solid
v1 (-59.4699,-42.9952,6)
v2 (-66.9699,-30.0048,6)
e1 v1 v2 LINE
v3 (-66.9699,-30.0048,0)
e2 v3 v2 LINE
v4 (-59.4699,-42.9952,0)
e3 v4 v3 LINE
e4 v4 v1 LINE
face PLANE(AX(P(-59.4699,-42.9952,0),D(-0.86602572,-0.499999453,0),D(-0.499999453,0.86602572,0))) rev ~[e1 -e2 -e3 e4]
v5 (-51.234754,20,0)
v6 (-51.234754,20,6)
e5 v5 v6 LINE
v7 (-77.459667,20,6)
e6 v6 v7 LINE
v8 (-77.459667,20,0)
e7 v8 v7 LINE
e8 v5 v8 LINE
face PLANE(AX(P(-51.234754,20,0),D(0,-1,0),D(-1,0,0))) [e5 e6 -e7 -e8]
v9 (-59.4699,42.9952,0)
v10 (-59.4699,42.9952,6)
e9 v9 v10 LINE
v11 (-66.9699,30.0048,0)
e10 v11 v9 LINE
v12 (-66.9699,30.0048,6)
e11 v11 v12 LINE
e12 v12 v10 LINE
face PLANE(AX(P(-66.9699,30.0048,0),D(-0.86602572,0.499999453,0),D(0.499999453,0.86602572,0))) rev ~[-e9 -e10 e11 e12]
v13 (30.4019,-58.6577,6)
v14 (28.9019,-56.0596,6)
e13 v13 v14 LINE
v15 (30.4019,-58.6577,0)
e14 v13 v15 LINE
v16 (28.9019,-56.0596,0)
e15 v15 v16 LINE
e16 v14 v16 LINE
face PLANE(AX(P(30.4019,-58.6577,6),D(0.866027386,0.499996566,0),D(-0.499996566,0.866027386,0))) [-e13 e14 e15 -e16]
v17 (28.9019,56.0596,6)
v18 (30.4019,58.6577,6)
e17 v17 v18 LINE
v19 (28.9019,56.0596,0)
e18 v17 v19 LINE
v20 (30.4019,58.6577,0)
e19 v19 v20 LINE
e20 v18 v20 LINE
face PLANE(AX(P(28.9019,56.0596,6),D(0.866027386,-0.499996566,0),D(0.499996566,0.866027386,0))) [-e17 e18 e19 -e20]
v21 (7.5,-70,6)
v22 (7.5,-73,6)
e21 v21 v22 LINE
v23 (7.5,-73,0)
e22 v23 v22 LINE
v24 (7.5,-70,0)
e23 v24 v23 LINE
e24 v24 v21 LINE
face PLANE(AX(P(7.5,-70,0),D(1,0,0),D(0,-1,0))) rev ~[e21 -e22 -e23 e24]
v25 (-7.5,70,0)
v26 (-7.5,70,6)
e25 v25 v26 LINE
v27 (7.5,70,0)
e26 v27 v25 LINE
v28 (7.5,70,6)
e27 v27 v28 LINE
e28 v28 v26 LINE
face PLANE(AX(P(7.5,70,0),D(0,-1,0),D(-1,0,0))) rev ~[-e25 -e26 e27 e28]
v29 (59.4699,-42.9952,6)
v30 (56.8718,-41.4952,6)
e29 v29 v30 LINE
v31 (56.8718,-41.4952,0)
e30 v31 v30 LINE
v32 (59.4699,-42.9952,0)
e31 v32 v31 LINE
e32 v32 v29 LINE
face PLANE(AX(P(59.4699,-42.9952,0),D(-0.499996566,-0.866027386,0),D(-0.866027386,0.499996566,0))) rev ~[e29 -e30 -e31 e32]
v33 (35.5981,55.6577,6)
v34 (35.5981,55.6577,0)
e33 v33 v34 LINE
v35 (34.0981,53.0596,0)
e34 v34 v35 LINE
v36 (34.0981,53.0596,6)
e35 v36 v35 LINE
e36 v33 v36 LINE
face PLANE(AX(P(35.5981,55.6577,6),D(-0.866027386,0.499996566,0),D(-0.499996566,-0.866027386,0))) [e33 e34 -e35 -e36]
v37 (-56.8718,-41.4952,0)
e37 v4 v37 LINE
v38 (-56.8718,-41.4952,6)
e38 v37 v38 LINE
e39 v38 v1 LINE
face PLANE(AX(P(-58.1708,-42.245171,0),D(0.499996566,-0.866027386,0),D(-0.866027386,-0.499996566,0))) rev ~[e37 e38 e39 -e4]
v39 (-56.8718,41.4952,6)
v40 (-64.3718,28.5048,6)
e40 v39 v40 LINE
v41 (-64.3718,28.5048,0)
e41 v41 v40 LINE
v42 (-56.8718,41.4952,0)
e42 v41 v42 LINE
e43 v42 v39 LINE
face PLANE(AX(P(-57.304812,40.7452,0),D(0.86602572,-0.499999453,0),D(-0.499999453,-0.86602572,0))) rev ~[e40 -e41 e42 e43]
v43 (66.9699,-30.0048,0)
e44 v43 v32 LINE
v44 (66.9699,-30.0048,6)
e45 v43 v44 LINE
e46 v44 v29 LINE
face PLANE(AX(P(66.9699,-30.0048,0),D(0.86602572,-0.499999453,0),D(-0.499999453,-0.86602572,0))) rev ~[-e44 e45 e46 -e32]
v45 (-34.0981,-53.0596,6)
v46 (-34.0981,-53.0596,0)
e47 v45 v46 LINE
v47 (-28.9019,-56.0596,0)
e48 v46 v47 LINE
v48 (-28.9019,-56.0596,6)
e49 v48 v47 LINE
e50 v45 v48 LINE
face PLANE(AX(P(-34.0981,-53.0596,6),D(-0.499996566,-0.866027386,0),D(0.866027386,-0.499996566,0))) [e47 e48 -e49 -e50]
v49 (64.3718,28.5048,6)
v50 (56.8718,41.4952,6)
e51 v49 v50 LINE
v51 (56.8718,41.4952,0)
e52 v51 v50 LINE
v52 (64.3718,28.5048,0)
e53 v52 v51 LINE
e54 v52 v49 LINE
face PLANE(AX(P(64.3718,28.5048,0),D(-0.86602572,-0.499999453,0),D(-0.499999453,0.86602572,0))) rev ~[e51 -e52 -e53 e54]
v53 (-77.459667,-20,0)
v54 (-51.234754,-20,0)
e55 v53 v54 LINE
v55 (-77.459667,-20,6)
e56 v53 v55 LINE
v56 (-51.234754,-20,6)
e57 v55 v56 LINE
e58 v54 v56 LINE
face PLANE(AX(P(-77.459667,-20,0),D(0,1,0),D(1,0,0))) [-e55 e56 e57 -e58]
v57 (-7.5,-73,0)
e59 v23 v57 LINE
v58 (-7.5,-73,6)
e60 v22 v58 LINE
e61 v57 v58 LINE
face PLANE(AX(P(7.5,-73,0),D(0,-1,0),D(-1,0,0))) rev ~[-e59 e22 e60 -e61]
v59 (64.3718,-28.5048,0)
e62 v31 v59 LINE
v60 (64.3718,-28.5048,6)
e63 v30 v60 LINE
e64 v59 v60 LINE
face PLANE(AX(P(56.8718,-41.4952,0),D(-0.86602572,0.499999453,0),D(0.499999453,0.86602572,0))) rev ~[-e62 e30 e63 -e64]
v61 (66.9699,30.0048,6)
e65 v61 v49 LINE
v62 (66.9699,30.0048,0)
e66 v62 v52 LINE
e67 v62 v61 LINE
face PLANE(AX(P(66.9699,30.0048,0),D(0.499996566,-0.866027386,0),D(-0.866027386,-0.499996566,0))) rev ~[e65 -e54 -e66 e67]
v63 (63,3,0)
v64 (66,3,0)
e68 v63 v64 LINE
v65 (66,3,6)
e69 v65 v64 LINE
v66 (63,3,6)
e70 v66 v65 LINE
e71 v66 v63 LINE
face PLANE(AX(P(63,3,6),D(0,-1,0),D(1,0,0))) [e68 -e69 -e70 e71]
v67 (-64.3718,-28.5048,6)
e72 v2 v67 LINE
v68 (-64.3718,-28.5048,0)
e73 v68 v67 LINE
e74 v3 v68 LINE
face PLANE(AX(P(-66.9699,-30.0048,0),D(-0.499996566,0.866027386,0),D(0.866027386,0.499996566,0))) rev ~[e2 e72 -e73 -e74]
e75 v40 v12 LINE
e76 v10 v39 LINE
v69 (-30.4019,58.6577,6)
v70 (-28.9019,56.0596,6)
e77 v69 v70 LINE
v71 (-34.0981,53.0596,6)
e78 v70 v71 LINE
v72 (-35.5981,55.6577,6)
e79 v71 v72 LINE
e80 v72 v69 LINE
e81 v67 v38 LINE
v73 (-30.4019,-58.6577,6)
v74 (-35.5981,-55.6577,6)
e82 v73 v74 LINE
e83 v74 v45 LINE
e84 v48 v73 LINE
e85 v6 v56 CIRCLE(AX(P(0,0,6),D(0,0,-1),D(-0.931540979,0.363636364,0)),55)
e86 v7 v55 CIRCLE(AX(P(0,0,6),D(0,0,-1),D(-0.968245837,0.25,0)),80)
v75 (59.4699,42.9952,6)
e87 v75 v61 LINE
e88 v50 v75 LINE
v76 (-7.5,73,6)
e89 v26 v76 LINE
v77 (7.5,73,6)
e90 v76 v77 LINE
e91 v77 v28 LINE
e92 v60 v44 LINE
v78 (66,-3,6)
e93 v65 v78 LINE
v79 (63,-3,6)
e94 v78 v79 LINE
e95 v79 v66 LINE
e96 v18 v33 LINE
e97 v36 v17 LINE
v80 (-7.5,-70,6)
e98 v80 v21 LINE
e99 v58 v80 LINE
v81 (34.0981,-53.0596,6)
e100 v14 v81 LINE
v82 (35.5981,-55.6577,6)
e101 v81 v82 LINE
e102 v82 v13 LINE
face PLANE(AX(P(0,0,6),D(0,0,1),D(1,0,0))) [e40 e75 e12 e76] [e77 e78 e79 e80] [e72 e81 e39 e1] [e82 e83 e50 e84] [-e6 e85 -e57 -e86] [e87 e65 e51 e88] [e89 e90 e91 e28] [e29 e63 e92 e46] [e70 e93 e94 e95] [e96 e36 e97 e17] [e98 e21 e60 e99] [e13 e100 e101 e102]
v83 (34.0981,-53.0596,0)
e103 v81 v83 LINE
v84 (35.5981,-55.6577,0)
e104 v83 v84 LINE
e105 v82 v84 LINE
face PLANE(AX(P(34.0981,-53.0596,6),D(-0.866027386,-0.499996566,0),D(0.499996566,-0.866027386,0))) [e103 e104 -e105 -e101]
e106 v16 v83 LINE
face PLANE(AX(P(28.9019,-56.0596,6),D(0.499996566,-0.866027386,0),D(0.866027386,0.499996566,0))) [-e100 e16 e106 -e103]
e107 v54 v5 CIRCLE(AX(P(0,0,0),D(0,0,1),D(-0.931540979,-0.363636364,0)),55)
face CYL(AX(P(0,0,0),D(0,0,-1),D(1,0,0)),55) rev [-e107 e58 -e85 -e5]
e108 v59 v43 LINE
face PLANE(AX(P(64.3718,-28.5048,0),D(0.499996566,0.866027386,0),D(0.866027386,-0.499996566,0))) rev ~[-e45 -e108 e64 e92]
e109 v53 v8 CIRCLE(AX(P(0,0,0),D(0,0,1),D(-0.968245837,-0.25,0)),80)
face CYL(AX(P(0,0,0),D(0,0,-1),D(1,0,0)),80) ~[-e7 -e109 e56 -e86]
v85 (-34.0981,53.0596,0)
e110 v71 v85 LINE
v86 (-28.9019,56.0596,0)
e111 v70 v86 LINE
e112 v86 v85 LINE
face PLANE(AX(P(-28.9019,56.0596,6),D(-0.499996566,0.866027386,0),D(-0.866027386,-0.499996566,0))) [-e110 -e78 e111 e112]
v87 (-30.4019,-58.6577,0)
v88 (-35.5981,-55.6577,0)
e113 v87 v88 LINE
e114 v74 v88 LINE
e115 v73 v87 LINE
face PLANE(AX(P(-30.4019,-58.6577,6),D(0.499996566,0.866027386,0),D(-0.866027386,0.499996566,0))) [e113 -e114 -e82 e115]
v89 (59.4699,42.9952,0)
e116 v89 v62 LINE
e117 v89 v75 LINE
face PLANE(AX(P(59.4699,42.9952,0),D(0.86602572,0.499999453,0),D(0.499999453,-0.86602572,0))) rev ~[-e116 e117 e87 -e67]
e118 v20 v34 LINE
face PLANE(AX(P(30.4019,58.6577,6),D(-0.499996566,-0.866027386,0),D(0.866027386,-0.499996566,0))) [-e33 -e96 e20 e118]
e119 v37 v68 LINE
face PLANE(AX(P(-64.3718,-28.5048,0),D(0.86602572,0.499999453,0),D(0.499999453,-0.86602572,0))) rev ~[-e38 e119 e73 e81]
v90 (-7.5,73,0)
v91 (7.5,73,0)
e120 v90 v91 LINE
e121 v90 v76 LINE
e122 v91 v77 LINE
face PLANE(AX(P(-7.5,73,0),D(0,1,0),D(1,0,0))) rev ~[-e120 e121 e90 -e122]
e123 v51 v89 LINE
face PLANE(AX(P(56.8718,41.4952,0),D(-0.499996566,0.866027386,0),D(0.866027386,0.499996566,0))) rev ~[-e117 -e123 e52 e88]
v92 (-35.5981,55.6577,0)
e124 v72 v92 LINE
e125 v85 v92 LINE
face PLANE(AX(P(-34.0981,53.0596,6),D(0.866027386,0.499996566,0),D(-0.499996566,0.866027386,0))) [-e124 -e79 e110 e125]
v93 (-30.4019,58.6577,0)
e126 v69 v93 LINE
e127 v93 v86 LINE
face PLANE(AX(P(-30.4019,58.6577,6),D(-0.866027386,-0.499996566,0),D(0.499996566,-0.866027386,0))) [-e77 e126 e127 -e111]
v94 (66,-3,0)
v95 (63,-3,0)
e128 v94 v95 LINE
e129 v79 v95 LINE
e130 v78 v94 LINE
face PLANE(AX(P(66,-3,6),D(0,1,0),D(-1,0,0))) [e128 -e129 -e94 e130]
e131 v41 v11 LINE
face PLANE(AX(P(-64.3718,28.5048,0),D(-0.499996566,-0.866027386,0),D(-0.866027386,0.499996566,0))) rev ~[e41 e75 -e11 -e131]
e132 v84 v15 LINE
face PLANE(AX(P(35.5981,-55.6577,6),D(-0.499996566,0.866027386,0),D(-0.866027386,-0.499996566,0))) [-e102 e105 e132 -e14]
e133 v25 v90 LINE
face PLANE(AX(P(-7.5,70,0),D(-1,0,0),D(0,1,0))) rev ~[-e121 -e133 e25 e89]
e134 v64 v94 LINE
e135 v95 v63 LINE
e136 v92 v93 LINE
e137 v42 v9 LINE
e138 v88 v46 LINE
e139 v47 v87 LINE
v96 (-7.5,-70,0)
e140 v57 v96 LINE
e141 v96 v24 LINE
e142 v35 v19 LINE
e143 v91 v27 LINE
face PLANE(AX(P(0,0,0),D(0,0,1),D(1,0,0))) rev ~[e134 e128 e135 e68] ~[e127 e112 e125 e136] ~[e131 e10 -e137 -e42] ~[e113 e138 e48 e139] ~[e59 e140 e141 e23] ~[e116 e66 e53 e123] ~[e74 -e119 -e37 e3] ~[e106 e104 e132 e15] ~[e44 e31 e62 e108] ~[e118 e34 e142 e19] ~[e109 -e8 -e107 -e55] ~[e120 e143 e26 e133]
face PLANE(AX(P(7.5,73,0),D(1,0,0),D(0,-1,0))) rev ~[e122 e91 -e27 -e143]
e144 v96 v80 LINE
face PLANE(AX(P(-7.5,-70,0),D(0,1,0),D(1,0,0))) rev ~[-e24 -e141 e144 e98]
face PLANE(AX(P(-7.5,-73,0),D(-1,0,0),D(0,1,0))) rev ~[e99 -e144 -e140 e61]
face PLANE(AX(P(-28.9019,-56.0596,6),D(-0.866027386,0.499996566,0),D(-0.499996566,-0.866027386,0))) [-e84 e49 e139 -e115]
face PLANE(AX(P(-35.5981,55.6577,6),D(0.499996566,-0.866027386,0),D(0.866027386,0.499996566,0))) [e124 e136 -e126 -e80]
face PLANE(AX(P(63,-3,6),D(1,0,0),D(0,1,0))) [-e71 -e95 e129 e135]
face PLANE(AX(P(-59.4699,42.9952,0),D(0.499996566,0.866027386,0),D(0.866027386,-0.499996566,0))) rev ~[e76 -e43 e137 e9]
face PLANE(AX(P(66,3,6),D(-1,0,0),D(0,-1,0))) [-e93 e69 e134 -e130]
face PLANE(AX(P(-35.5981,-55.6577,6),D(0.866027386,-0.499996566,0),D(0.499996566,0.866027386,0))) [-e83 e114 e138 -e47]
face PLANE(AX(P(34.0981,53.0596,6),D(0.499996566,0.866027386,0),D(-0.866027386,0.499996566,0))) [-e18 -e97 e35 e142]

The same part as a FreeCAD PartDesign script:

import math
import FreeCAD as App
import Part
import Sketcher

V = App.Vector
Q = App.Units.Quantity


def add_polygon(sketch, points):
    """Adds a closed chain of lines whose ends are joined by coincident constraints."""
    first, n = sketch.GeometryCount, len(points)
    for a, b in zip(points, points[1:] + points[:1]):
        sketch.addGeometry(Part.LineSegment(App.Vector(*a, 0), App.Vector(*b, 0)), False)
    for i in range(n):
        sketch.addConstraint(Sketcher.Constraint("Coincident", first + i, 2, first + (i + 1) % n, 1))

doc = App.newDocument("Part")
body = doc.addObject("PartDesign::Body", "Body")

sketch1 = doc.addObject("Sketcher::SketchObject", "Sketch")
body.addObject(sketch1)
sketch1.AttachmentSupport = (doc.XY_Plane, [""])
sketch1.MapMode = "FlatFace"
sketch1.addGeometry(Part.ArcOfCircle(Part.Circle(V(0, 0, 0), V(0, 0, 1), 80), math.radians(-166), math.radians(166)), False)
sketch1.addGeometry(Part.LineSegment(V(-77.5, 20, 0), V(-51.2, 20, 0)), False)
sketch1.addGeometry(Part.ArcOfCircle(Part.Circle(V(0, 0, 0), V(0, 0, 1), 55), math.radians(-159), math.radians(159)), False)
sketch1.addGeometry(Part.LineSegment(V(-51.2, -20, 0), V(-77.5, -20, 0)), False)
add_polygon(sketch1, [(-59.5, -43), (-67, -30), (-64.4, -28.5), (-56.9, -41.5)])
add_polygon(sketch1, [(7.5, -70), (7.5, -73), (-7.5, -73), (-7.5, -70)])
add_polygon(sketch1, [(64.4, -28.5), (67, -30), (59.5, -43), (56.9, -41.5)])
add_polygon(sketch1, [(-64.4, 28.5), (-67, 30), (-59.5, 43), (-56.9, 41.5)])
add_polygon(sketch1, [(56.9, 41.5), (59.5, 43), (67, 30), (64.4, 28.5)])
add_polygon(sketch1, [(-7.5, 70), (-7.5, 73), (7.5, 73), (7.5, 70)])
sketch1.addConstraint([
    Sketcher.Constraint("Coincident", 0, 2, 1, 1),
    Sketcher.Constraint("Coincident", 1, 2, 2, 2),
    Sketcher.Constraint("Coincident", 2, 1, 3, 1),
    Sketcher.Constraint("Coincident", 3, 2, 0, 1),
    Sketcher.Constraint("Horizontal", 1),
    Sketcher.Constraint("Horizontal", 3),
    Sketcher.Constraint("Vertical", 8),
    Sketcher.Constraint("Horizontal", 9),
    Sketcher.Constraint("Vertical", 10),
    Sketcher.Constraint("Horizontal", 11),
    Sketcher.Constraint("Vertical", 24),
    Sketcher.Constraint("Horizontal", 25),
    Sketcher.Constraint("Vertical", 26),
    Sketcher.Constraint("Horizontal", 27),
    Sketcher.Constraint("Coincident", 0, 3, -1, 1),
    Sketcher.Constraint("Coincident", 2, 3, -1, 1),
    Sketcher.Constraint("Symmetric", 12, 2, 16, 2, -1, 1),
    Sketcher.Constraint("Symmetric", 13, 2, 17, 2, -1, 1),
    Sketcher.Constraint("Symmetric", 14, 2, 18, 2, -1, 1),
    Sketcher.Constraint("Symmetric", 15, 2, 19, 2, -1, 1),
    Sketcher.Constraint("Symmetric", 7, 2, 20, 2, -1, 1),
    Sketcher.Constraint("Symmetric", 4, 2, 21, 2, -1, 1),
    Sketcher.Constraint("Symmetric", 5, 2, 22, 2, -1, 1),
    Sketcher.Constraint("Symmetric", 6, 2, 23, 2, -1, 1),
    Sketcher.Constraint("Symmetric", 8, 2, 24, 2, -1, 1),
    Sketcher.Constraint("Symmetric", 10, 2, 26, 2, -1, 1),
    Sketcher.Constraint("Symmetric", 4, 2, 12, 2, -2),
    Sketcher.Constraint("Symmetric", 7, 2, 13, 2, -2),
    Sketcher.Constraint("Symmetric", 6, 2, 14, 2, -2),
    Sketcher.Constraint("Symmetric", 5, 2, 15, 2, -2),
    Sketcher.Constraint("Perpendicular", 4, 5),
    Sketcher.Constraint("Perpendicular", 5, 6),
    Sketcher.Constraint("Perpendicular", 6, 7),
    Sketcher.Constraint("Vertical", 1, 2, 2, 1),
    Sketcher.Constraint("Vertical", 10, 2, 24, 2),
    Sketcher.Constraint("Radius", 0, Q("80 mm")),
    Sketcher.Constraint("Radius", 2, Q("55 mm")),
    Sketcher.Constraint("DistanceX", 9, 2, 9, 1, Q("15 mm")),
    Sketcher.Constraint("DistanceY", 8, 2, 8, 1, Q("3 mm")),
    Sketcher.Constraint("Distance", 4, Q("15 mm")),
    Sketcher.Constraint("Distance", 5, Q("3 mm")),
    Sketcher.Constraint("DistanceY", 10, 2, -1, 1, Q("70 mm")),
    Sketcher.Constraint("DistanceY", 2, 1, 1, 2, Q("40 mm")),
    Sketcher.Constraint("DistanceY", 14, 2, 22, 2, Q("70 mm")),
    Sketcher.Constraint("Angle", 4, Q("120 deg")),
    Sketcher.Constraint("DistanceX", 4, 2, -1, 1, Q("66.97 mm")),
])
pad1 = doc.addObject("PartDesign::Pad", "Pad")
body.addObject(pad1)
pad1.Profile = sketch1
pad1.Length = 6

sketch2 = doc.addObject("Sketcher::SketchObject", "Sketch001")
body.addObject(sketch2)
sketch2.AttachmentSupport = (doc.XY_Plane, [""])
sketch2.MapMode = "FlatFace"
sketch2.AttachmentOffset = App.Placement(V(0, 0, 6), App.Rotation())
add_polygon(sketch2, [(66, 3), (63, 3), (63, -3), (66, -3)])
add_polygon(sketch2, [(30.4, 58.7), (28.9, 56.1), (34.1, 53.1), (35.6, 55.7)])
add_polygon(sketch2, [(-35.6, 55.7), (-34.1, 53.1), (-28.9, 56.1), (-30.4, 58.7)])
add_polygon(sketch2, [(-30.4, -58.7), (-28.9, -56.1), (-34.1, -53.1), (-35.6, -55.7)])
add_polygon(sketch2, [(35.6, -55.7), (34.1, -53.1), (28.9, -56.1), (30.4, -58.7)])
sketch2.addConstraint([
    Sketcher.Constraint("Horizontal", 0),
    Sketcher.Constraint("Vertical", 1),
    Sketcher.Constraint("Horizontal", 2),
    Sketcher.Constraint("Vertical", 3),
    Sketcher.Constraint("Symmetric", 4, 2, 12, 2, -1, 1),
    Sketcher.Constraint("Symmetric", 5, 2, 13, 2, -1, 1),
    Sketcher.Constraint("Symmetric", 6, 2, 14, 2, -1, 1),
    Sketcher.Constraint("Symmetric", 7, 2, 15, 2, -1, 1),
    Sketcher.Constraint("Symmetric", 8, 2, 16, 2, -1, 1),
    Sketcher.Constraint("Symmetric", 9, 2, 17, 2, -1, 1),
    Sketcher.Constraint("Symmetric", 10, 2, 18, 2, -1, 1),
    Sketcher.Constraint("Symmetric", 11, 2, 19, 2, -1, 1),
    Sketcher.Constraint("Symmetric", 5, 2, 8, 2, -2),
    Sketcher.Constraint("Symmetric", 4, 2, 9, 2, -2),
    Sketcher.Constraint("Symmetric", 7, 2, 10, 2, -2),
    Sketcher.Constraint("Symmetric", 6, 2, 11, 2, -2),
    Sketcher.Constraint("Perpendicular", 4, 5),
    Sketcher.Constraint("Perpendicular", 5, 6),
    Sketcher.Constraint("Perpendicular", 6, 7),
    Sketcher.Constraint("DistanceX", 0, 2, 0, 1, Q("3 mm")),
    Sketcher.Constraint("DistanceY", 1, 2, 1, 1, Q("6 mm")),
    Sketcher.Constraint("Distance", 4, Q("3 mm")),
    Sketcher.Constraint("Distance", 5, Q("6 mm")),
    Sketcher.Constraint("DistanceX", -1, 1, 0, 2, Q("63 mm")),
    Sketcher.Constraint("DistanceY", -1, 1, 0, 2, Q("3 mm")),
    Sketcher.Constraint("DistanceY", 5, 2, 4, 2, Q("3 mm")),
    Sketcher.Constraint("DistanceX", 8, 2, 4, 2, Q("63 mm")),
    Sketcher.Constraint("DistanceY", -1, 1, 4, 2, Q("56.0596 mm")),
])
pocket1 = doc.addObject("PartDesign::Pocket", "Pocket")
body.addObject(pocket1)
pocket1.Profile = sketch2
pocket1.Length = 10

doc.recompute()
